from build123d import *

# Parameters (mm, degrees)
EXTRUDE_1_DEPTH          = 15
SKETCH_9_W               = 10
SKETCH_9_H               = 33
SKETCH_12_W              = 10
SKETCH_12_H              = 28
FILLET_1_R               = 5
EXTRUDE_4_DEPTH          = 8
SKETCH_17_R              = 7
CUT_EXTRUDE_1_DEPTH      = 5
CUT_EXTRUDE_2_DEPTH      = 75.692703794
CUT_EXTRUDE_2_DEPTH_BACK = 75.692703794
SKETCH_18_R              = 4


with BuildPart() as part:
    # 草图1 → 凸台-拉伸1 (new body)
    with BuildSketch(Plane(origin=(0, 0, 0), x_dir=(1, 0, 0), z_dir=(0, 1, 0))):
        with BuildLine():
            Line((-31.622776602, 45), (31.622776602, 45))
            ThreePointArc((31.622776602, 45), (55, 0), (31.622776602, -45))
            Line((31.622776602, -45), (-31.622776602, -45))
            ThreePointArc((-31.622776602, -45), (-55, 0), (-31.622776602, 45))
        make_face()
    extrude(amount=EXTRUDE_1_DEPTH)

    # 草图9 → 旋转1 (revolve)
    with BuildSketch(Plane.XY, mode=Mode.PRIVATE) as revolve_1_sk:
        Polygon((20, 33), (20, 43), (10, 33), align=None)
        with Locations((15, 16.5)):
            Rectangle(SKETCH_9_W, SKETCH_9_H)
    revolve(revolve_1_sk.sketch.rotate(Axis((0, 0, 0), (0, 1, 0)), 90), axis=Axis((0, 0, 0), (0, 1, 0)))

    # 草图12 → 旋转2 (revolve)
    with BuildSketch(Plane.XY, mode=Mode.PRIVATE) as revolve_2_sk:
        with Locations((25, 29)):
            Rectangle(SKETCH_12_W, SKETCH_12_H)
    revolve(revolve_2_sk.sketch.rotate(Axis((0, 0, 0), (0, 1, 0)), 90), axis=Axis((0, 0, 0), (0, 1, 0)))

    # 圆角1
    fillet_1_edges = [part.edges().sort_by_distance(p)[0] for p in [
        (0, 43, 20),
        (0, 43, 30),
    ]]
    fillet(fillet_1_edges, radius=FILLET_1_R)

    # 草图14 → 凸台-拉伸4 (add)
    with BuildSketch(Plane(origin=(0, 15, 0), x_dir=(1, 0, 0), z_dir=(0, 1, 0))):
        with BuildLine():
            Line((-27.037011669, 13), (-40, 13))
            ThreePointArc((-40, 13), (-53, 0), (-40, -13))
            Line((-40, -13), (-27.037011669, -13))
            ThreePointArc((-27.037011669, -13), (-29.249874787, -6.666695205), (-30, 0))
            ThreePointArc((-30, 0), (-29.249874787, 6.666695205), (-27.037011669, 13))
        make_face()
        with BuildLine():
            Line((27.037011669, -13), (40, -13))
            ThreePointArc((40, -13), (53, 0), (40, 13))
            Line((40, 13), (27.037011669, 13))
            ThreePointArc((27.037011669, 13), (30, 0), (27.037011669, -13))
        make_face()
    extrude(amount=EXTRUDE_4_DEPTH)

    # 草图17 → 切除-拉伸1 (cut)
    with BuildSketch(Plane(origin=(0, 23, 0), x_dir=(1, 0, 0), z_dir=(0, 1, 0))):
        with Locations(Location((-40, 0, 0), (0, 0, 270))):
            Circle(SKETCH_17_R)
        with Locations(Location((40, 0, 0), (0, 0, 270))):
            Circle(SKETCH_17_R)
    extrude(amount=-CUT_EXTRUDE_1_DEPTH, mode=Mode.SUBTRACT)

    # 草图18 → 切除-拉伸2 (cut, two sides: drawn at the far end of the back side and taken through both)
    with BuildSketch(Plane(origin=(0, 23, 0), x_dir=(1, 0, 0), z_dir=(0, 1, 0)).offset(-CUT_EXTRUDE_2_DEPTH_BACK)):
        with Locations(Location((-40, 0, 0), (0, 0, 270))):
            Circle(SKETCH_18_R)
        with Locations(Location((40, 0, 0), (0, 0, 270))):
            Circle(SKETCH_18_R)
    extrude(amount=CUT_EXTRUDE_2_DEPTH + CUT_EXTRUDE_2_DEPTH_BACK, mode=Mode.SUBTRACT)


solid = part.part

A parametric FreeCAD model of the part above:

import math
import FreeCAD as App
import Part
import Sketcher

V = App.Vector
Q = App.Units.Quantity


def edges_at(feature, points):
    """Names of the edges that pass closest to the given points."""
    edges = feature.Shape.Edges
    near = lambda p: min(range(len(edges)), key=lambda i: edges[i].distToShape(Part.Vertex(*p))[0])
    return sorted({f"Edge{near(p) + 1}" for p in points})


def add_polygon(sketch, points):
    """Adds a closed chain of lines whose ends are joined by coincident constraints."""
    first, n = sketch.GeometryCount, len(points)
    for a, b in zip(points, points[1:] + points[:1]):
        sketch.addGeometry(Part.LineSegment(App.Vector(*a, 0), App.Vector(*b, 0)), False)
    for i in range(n):
        sketch.addConstraint(Sketcher.Constraint("Coincident", first + i, 2, first + (i + 1) % n, 1))

doc = App.newDocument("Part")
body = doc.addObject("PartDesign::Body", "Body")

# Sketch on XZ plane
sketch1 = body.newObject("Sketcher::SketchObject", "Sketch")
sketch1.AttachmentSupport = (doc.getObject("XZ_Plane"), [""])
sketch1.MapMode = "FlatFace"
sketch1.addGeometry([
    Part.LineSegment(V(32, -45, 0), V(-32, -45, 0)),
    Part.ArcOfCircle(Part.Circle(V(0, 0, 0), V(0, 0, 1), 55), math.radians(125), math.radians(235)),
    Part.LineSegment(V(-32, 45, 0), V(32, 45, 0)),
    Part.ArcOfCircle(Part.Circle(V(0, 0, 0), V(0, 0, 1), 55), math.radians(-55), math.radians(55)),
], False)
sketch1.addConstraint([
    Sketcher.Constraint("Coincident", 0, 2, 1, 2),
    Sketcher.Constraint("Coincident", 1, 1, 2, 1),
    Sketcher.Constraint("Coincident", 2, 2, 3, 2),
    Sketcher.Constraint("Coincident", 3, 1, 0, 1),
    Sketcher.Constraint("Horizontal", 0),
    Sketcher.Constraint("Horizontal", 2),
    Sketcher.Constraint("Coincident", 1, 3, -1, 1),
    Sketcher.Constraint("Coincident", 3, 3, -1, 1),
    Sketcher.Constraint("Equal", 1, 3),
    Sketcher.Constraint("Vertical", 0, 2, 1, 1),
    Sketcher.Constraint("Radius", 1, Q("55 mm")),
    Sketcher.Constraint("DistanceY", 0, 2, -1, 1, Q("45 mm")),
])
pad1 = body.newObject("PartDesign::Pad", "Pad")
pad1.Profile = sketch1
pad1.Length = 15
pad1.Reversed = True

# Sketch on XY plane
sketch2 = body.newObject("Sketcher::SketchObject", "Sketch001")
sketch2.AttachmentSupport = (doc.getObject("XY_Plane"), [""])
sketch2.MapMode = "FlatFace"
add_polygon(sketch2, [(20, 43), (10, 33), (10, 0), (20, 0)])  # lines 0-3
sketch2.addConstraint([
    Sketcher.Constraint("Vertical", 1),
    Sketcher.Constraint("Horizontal", 2),
    Sketcher.Constraint("Vertical", 3),
    Sketcher.Constraint("PointOnObject", 1, 2, -1),
    Sketcher.Constraint("DistanceX", 2, 1, 2, 2, Q("10 mm")),
    Sketcher.Constraint("DistanceY", 1, 2, 1, 1, Q("33 mm")),
    Sketcher.Constraint("DistanceY", 3, 1, 3, 2, Q("43 mm")),
    Sketcher.Constraint("DistanceX", -1, 1, 0, 2, Q("10 mm")),
])
revolution = body.newObject("PartDesign::Revolution", "Revolution")
revolution.Profile = sketch2
revolution.ReferenceAxis = (sketch2, ["V_Axis"])
revolution.Angle = 360

# Sketch on XY plane
sketch3 = body.newObject("Sketcher::SketchObject", "Sketch002")
sketch3.AttachmentSupport = (doc.getObject("XY_Plane"), [""])
sketch3.MapMode = "FlatFace"
add_polygon(sketch3, [(20, 43), (20, 15), (30, 15), (30, 43)])  # lines 0-3
sketch3.addConstraint([
    Sketcher.Constraint("Vertical", 0),
    Sketcher.Constraint("Horizontal", 1),
    Sketcher.Constraint("Vertical", 2),
    Sketcher.Constraint("Horizontal", 3),
    Sketcher.Constraint("DistanceX", 1, 1, 1, 2, Q("10 mm")),
    Sketcher.Constraint("DistanceY", 0, 2, 0, 1, Q("28 mm")),
    Sketcher.Constraint("DistanceX", -1, 1, 0, 2, Q("20 mm")),
    Sketcher.Constraint("DistanceY", -1, 1, 0, 2, Q("15 mm")),
])
revolution2 = body.newObject("PartDesign::Revolution", "Revolution001")
revolution2.Profile = sketch3
revolution2.ReferenceAxis = (sketch3, ["V_Axis"])
revolution2.Angle = 360
doc.recompute()

fillet = body.newObject("PartDesign::Fillet", "Fillet")
fillet.Base = (revolution2, edges_at(revolution2, [(0, 43, 20), (0, 43, 30)]))
fillet.Radius = 5

# Sketch on XZ plane
sketch4 = body.newObject("Sketcher::SketchObject", "Sketch003")
sketch4.AttachmentSupport = (doc.getObject("XZ_Plane"), [""])
sketch4.MapMode = "FlatFace"
sketch4.AttachmentOffset = App.Placement(V(0, 0, -15), App.Rotation())
sketch4.addGeometry([
    Part.LineSegment(V(-27, -13, 0), V(-40, -13, 0)),  # 0
    Part.ArcOfCircle(Part.Circle(V(-40, 0, 0), V(0, 0, 1), 13), math.radians(90), math.radians(270)),  # 1
    Part.LineSegment(V(-40, 13, 0), V(-27, 13, 0)),  # 2
    Part.ArcOfCircle(Part.Circle(V(0, 0, 0), V(0, 0, 1), 30), math.radians(154), math.radians(180)),  # 3
    Part.ArcOfCircle(Part.Circle(V(0, 0, 0), V(0, 0, 1), 30), math.radians(180), math.radians(206)),  # 4
    Part.LineSegment(V(27, 13, 0), V(40, 13, 0)),  # 5
    Part.ArcOfCircle(Part.Circle(V(40, 0, 0), V(0, 0, 1), 13), math.radians(-90), math.radians(90)),  # 6
    Part.LineSegment(V(40, -13, 0), V(27, -13, 0)),  # 7
    Part.ArcOfCircle(Part.Circle(V(0, 0, 0), V(0, 0, 1), 30), math.radians(-26), math.radians(26)),  # 8
], False)
sketch4.addConstraint([
    Sketcher.Constraint("Tangent", 0, 2, 1, 2),
    Sketcher.Constraint("Tangent", 1, 1, 2, 1),
    Sketcher.Constraint("Coincident", 2, 2, 3, 1),
    Sketcher.Constraint("Tangent", 3, 2, 4, 1),
    Sketcher.Constraint("Coincident", 4, 2, 0, 1),
    Sketcher.Constraint("Tangent", 5, 2, 6, 2),
    Sketcher.Constraint("Tangent", 6, 1, 7, 1),
    Sketcher.Constraint("Coincident", 7, 2, 8, 1),
    Sketcher.Constraint("Coincident", 8, 2, 5, 1),
    Sketcher.Constraint("Horizontal", 0),
    Sketcher.Constraint("Horizontal", 2),
    Sketcher.Constraint("Horizontal", 5),
    Sketcher.Constraint("Horizontal", 7),
    Sketcher.Constraint("Coincident", 3, 3, -1, 1),
    Sketcher.Constraint("Coincident", 8, 3, -1, 1),
    Sketcher.Constraint("Equal", 3, 4),
    Sketcher.Constraint("Equal", 1, 6),
    Sketcher.Constraint("Equal", 4, 8),
    Sketcher.Constraint("Symmetric", 1, 3, 6, 3, -1, 1),
    Sketcher.Constraint("PointOnObject", 1, 3, -1),
    Sketcher.Constraint("PointOnObject", 3, 2, -1),
    Sketcher.Constraint("Radius", 1, Q("13 mm")),
    Sketcher.Constraint("Radius", 3, Q("30 mm")),
    Sketcher.Constraint("DistanceX", 1, 3, -1, 1, Q("40 mm")),
])
pad2 = body.newObject("PartDesign::Pad", "Pad001")
pad2.Profile = sketch4
pad2.Length = 8
pad2.Reversed = True

# Sketch on XZ plane
sketch5 = body.newObject("Sketcher::SketchObject", "Sketch004")
sketch5.AttachmentSupport = (doc.getObject("XZ_Plane"), [""])
sketch5.MapMode = "FlatFace"
sketch5.AttachmentOffset = App.Placement(V(0, 0, -23), App.Rotation())
sketch5.addGeometry([
    Part.Circle(V(-40, 0, 0), V(0, 0, 1), 7),
    Part.Circle(V(40, 0, 0), V(0, 0, 1), 7),
], False)
sketch5.addConstraint([
    Sketcher.Constraint("Equal", 0, 1),
    Sketcher.Constraint("Symmetric", 0, 3, 1, 3, -1, 1),
    Sketcher.Constraint("PointOnObject", 0, 3, -1),
    Sketcher.Constraint("Diameter", 0, Q("14 mm")),
    Sketcher.Constraint("DistanceX", 0, 3, -1, 1, Q("40 mm")),
])
pocket1 = body.newObject("PartDesign::Pocket", "Pocket")
pocket1.Profile = sketch5
pocket1.Length = 5
pocket1.Reversed = True

# Sketch on XZ plane
sketch6 = body.newObject("Sketcher::SketchObject", "Sketch005")
sketch6.AttachmentSupport = (doc.getObject("XZ_Plane"), [""])
sketch6.MapMode = "FlatFace"
sketch6.AttachmentOffset = App.Placement(V(0, 0, -23), App.Rotation())
sketch6.addGeometry([
    Part.Circle(V(-40, 0, 0), V(0, 0, 1), 4),
    Part.Circle(V(40, 0, 0), V(0, 0, 1), 4),
], False)
sketch6.addConstraint([
    Sketcher.Constraint("Equal", 0, 1),
    Sketcher.Constraint("Symmetric", 0, 3, 1, 3, -1, 1),
    Sketcher.Constraint("PointOnObject", 0, 3, -1),
    Sketcher.Constraint("Diameter", 0, Q("8 mm")),
    Sketcher.Constraint("DistanceX", 0, 3, -1, 1, Q("40 mm")),
])
pocket2 = body.newObject("PartDesign::Pocket", "Pocket001")
pocket2.Profile = sketch6
pocket2.Type = "ThroughAll"
pocket2.Midplane = True

doc.recompute()
